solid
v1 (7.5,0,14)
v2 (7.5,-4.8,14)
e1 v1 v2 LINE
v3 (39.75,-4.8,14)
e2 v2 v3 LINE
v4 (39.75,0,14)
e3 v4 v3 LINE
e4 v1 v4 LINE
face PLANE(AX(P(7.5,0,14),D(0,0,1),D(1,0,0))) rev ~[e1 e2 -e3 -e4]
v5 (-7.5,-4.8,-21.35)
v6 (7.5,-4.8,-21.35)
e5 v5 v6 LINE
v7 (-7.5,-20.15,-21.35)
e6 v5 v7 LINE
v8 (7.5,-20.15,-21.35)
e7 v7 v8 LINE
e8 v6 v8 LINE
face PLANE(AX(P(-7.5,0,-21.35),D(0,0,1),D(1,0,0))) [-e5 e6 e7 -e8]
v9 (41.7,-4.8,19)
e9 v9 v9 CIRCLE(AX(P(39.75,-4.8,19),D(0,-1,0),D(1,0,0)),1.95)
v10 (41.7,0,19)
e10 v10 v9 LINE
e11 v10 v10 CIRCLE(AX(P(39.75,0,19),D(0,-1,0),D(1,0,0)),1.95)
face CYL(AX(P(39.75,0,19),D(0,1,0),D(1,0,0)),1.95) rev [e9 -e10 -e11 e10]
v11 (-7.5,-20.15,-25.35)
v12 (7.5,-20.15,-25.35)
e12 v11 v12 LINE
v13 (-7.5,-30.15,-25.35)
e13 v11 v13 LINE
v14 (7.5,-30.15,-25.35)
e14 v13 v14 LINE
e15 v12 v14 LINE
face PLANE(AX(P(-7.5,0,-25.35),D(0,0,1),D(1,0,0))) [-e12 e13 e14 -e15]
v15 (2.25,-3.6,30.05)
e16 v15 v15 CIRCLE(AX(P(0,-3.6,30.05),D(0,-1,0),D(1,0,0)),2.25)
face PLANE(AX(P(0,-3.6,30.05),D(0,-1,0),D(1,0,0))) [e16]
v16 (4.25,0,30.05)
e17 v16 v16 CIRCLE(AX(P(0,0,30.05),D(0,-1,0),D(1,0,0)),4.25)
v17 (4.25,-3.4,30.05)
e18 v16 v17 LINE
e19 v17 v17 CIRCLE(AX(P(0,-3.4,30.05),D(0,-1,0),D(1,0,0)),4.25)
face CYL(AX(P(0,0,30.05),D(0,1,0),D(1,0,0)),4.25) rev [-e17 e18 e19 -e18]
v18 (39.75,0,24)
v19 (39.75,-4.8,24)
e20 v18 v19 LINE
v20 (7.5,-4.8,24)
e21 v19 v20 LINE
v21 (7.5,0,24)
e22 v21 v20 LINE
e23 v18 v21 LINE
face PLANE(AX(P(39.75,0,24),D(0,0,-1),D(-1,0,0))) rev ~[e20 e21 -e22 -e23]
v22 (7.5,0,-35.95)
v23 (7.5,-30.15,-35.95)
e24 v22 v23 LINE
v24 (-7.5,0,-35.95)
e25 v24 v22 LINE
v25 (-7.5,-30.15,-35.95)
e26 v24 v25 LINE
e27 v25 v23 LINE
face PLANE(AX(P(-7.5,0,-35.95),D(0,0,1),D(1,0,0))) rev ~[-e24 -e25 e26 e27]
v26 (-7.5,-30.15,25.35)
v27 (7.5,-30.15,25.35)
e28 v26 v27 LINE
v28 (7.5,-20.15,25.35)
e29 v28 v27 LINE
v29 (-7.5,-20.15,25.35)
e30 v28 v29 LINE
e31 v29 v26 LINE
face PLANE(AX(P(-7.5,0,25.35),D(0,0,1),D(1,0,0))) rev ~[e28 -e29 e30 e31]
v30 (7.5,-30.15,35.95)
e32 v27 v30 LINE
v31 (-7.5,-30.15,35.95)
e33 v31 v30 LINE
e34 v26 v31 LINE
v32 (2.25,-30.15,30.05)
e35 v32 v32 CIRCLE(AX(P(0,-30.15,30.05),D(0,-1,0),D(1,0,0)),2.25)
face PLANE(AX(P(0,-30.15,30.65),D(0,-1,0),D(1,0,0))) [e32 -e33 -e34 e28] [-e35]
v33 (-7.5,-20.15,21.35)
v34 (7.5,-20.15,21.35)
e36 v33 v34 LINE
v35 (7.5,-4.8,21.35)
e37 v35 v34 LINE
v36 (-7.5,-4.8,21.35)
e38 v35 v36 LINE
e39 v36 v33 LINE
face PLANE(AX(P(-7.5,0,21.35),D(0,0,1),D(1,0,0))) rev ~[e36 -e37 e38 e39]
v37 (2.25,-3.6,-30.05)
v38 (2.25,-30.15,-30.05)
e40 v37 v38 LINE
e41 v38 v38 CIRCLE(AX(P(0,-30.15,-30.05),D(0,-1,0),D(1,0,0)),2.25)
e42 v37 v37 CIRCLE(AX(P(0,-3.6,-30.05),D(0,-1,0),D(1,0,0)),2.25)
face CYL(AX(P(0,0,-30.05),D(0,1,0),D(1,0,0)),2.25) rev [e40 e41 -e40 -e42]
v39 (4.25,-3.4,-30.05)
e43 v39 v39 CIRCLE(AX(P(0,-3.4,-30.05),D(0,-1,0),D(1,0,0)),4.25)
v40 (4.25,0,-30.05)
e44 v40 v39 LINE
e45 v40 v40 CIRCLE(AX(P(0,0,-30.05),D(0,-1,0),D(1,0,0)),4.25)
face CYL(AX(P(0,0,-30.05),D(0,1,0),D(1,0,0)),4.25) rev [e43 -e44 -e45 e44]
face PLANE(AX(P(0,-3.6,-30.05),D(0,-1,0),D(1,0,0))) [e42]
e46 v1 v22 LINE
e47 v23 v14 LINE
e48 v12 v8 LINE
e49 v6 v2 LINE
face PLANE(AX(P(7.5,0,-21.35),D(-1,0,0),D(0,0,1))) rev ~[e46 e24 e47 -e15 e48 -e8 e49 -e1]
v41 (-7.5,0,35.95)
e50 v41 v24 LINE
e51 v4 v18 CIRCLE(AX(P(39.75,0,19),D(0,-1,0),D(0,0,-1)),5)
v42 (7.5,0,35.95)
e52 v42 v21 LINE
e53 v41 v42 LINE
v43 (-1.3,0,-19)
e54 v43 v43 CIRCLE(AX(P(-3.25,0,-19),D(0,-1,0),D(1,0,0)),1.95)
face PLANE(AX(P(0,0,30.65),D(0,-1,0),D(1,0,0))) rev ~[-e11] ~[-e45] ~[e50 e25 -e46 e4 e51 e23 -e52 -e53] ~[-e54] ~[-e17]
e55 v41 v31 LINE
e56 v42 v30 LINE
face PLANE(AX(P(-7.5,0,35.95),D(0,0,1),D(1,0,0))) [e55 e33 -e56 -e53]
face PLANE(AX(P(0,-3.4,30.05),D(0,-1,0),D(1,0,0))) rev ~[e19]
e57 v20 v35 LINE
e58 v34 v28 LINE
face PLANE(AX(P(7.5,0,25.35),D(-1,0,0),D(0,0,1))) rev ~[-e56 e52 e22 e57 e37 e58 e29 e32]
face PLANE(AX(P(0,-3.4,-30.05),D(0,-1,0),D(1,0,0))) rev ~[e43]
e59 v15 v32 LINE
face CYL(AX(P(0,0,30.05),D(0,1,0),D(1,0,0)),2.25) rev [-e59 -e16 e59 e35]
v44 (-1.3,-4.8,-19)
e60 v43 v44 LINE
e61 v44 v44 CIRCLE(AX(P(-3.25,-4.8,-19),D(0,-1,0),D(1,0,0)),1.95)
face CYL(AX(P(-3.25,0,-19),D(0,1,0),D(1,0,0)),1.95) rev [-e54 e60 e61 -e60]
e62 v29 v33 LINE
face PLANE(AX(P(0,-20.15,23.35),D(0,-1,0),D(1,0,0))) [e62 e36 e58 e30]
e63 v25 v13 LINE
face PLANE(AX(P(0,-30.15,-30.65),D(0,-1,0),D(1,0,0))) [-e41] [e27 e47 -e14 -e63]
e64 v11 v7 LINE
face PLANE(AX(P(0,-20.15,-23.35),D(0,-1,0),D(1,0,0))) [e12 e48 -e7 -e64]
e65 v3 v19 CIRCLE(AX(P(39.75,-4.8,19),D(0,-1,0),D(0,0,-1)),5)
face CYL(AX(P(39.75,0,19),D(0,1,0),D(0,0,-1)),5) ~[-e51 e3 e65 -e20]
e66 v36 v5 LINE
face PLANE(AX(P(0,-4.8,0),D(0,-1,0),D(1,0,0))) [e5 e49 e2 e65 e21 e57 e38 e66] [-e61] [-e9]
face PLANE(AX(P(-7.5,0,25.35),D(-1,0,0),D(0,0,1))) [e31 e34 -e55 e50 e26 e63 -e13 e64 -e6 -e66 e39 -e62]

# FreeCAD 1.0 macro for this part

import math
import FreeCAD as App
import Part
import Sketcher

V = App.Vector
Q = App.Units.Quantity


def add_polygon(sketch, points):
    """Adds a closed chain of lines whose ends are joined by coincident constraints."""
    first, n = sketch.GeometryCount, len(points)
    for a, b in zip(points, points[1:] + points[:1]):
        sketch.addGeometry(Part.LineSegment(App.Vector(*a, 0), App.Vector(*b, 0)), False)
    for i in range(n):
        sketch.addConstraint(Sketcher.Constraint("Coincident", first + i, 2, first + (i + 1) % n, 1))

doc = App.newDocument("Part")
body = doc.addObject("PartDesign::Body", "Body")

# Sketch on XZ plane
sketch1 = doc.addObject("Sketcher::SketchObject", "Sketch")
body.addObject(sketch1)
sketch1.AttachmentSupport = (doc.XZ_Plane, [""])
sketch1.MapMode = "FlatFace"
sketch1.addGeometry([
    Part.LineSegment(V(7.5, 21.4, 0), V(-7.5, 21.4, 0)),  # 0
    Part.LineSegment(V(-7.5, 21.4, 0), V(-7.5, -21.4, 0)),  # 1
    Part.LineSegment(V(-7.5, -21.4, 0), V(7.5, -21.4, 0)),  # 2
    Part.LineSegment(V(7.5, -21.4, 0), V(7.5, 14, 0)),  # 3
    Part.LineSegment(V(7.5, 14, 0), V(39.8, 14, 0)),  # 4
    Part.ArcOfCircle(Part.Circle(V(39.8, 19, 0), V(0, 0, 1), 5), math.radians(-90), math.radians(90)),  # 5
    Part.LineSegment(V(39.8, 24, 0), V(7.5, 24, 0)),  # 6
    Part.LineSegment(V(7.5, 24, 0), V(7.5, 21.4, 0)),  # 7
    Part.Circle(V(-3.2, -19, 0), V(0, 0, 1), 1.9),  # 8
    Part.Circle(V(39.8, 19, 0), V(0, 0, 1), 1.9),  # 9
], False)
sketch1.addConstraint([
    Sketcher.Constraint("Coincident", 0, 2, 1, 1),
    Sketcher.Constraint("Coincident", 1, 2, 2, 1),
    Sketcher.Constraint("Coincident", 2, 2, 3, 1),
    Sketcher.Constraint("Coincident", 3, 2, 4, 1),
    Sketcher.Constraint("Tangent", 4, 2, 5, 1),
    Sketcher.Constraint("Tangent", 5, 2, 6, 1),
    Sketcher.Constraint("Coincident", 6, 2, 7, 1),
    Sketcher.Constraint("Coincident", 7, 2, 0, 1),
    Sketcher.Constraint("Horizontal", 0),
    Sketcher.Constraint("Vertical", 1),
    Sketcher.Constraint("Horizontal", 2),
    Sketcher.Constraint("Vertical", 3),
    Sketcher.Constraint("Horizontal", 4),
    Sketcher.Constraint("Horizontal", 6),
    Sketcher.Constraint("Vertical", 7),
    Sketcher.Constraint("Coincident", 9, 3, 5, 3),
    Sketcher.Constraint("Equal", 8, 9),
    Sketcher.Constraint("Symmetric", 0, 2, 2, 2, -1, 1),
    Sketcher.Constraint("Vertical", 3, 2, 6, 2),
    Sketcher.Constraint("Radius", 5, Q("5 mm")),
    Sketcher.Constraint("Diameter", 8, Q("3.9 mm")),
    Sketcher.Constraint("DistanceX", 0, 2, 0, 1, Q("15 mm")),
    Sketcher.Constraint("DistanceY", 1, 2, 1, 1, Q("42.7 mm")),
    Sketcher.Constraint("DistanceY", -1, 1, 5, 3, Q("19 mm")),
    Sketcher.Constraint("DistanceY", 8, 3, -1, 1, Q("19 mm")),
    Sketcher.Constraint("DistanceX", 8, 3, 5, 3, Q("43 mm")),
    Sketcher.Constraint("DistanceX", 4, 1, 4, 2, Q("32.25 mm")),
])
pad1 = doc.addObject("PartDesign::Pad", "Pad")
body.addObject(pad1)
pad1.Profile = sketch1
pad1.Length = 4.8

# Sketch on XZ plane
sketch2 = doc.addObject("Sketcher::SketchObject", "Sketch001")
body.addObject(sketch2)
sketch2.AttachmentSupport = (doc.XZ_Plane, [""])
sketch2.MapMode = "FlatFace"
add_polygon(sketch2, [(7.5, 25.4), (-7.5, 25.4), (-7.5, 21.4), (7.5, 21.4)])  # lines 0-3
add_polygon(sketch2, [(-7.5, -21.4), (-7.5, -25.4), (7.5, -25.4), (7.5, -21.4)])  # lines 4-7
sketch2.addConstraint([
    Sketcher.Constraint("Horizontal", 0),
    Sketcher.Constraint("Vertical", 1),
    Sketcher.Constraint("Horizontal", 2),
    Sketcher.Constraint("Vertical", 3),
    Sketcher.Constraint("Vertical", 4),
    Sketcher.Constraint("Horizontal", 5),
    Sketcher.Constraint("Vertical", 6),
    Sketcher.Constraint("Horizontal", 7),
    Sketcher.Constraint("Symmetric", 3, 2, 4, 2, -1, 1),
    Sketcher.Constraint("Symmetric", 1, 2, 6, 2, -1, 1),
    Sketcher.Constraint("Vertical", 1, 2, 4, 2),
    Sketcher.Constraint("DistanceX", 0, 2, 0, 1, Q("15 mm")),
    Sketcher.Constraint("DistanceY", 1, 2, 1, 1, Q("4 mm")),
    Sketcher.Constraint("DistanceY", 4, 2, 1, 2, Q("46.7 mm")),
])
pad2 = doc.addObject("PartDesign::Pad", "Pad001")
body.addObject(pad2)
pad2.Profile = sketch2
pad2.Length = 20.15

# Sketch on XZ plane
sketch3 = doc.addObject("Sketcher::SketchObject", "Sketch002")
body.addObject(sketch3)
sketch3.AttachmentSupport = (doc.XZ_Plane, [""])
sketch3.MapMode = "FlatFace"
add_polygon(sketch3, [(-7.5, 36), (-7.5, 25.4), (7.5, 25.4), (7.5, 36)])  # lines 0-3
sketch3.addGeometry(Part.Circle(V(0, 30.1, 0), V(0, 0, 1), 2.2), False)  # 4
add_polygon(sketch3, [(-7.5, -25.4), (-7.5, -36), (7.5, -36), (7.5, -25.4)])  # lines 5-8
sketch3.addGeometry(Part.Circle(V(0, -30.1, 0), V(0, 0, 1), 2.2), False)  # 9
sketch3.addConstraint([
    Sketcher.Constraint("Vertical", 0),
    Sketcher.Constraint("Horizontal", 1),
    Sketcher.Constraint("Vertical", 2),
    Sketcher.Constraint("Horizontal", 3),
    Sketcher.Constraint("Vertical", 5),
    Sketcher.Constraint("Horizontal", 6),
    Sketcher.Constraint("Vertical", 7),
    Sketcher.Constraint("Horizontal", 8),
    Sketcher.Constraint("Equal", 4, 9),
    Sketcher.Constraint("Symmetric", 4, 3, 9, 3, -1, 1),
    Sketcher.Constraint("Symmetric", 2, 2, 5, 2, -1, 1),
    Sketcher.Constraint("Symmetric", 0, 2, 7, 2, -1, 1),
    Sketcher.Constraint("PointOnObject", 4, 3, -2),
    Sketcher.Constraint("Vertical", 3, 2, 5, 2),
    Sketcher.Constraint("Diameter", 4, Q("4.5 mm")),
    Sketcher.Constraint("DistanceX", 1, 1, 1, 2, Q("15 mm")),
    Sketcher.Constraint("DistanceY", 0, 2, 0, 1, Q("10.6 mm")),
    Sketcher.Constraint("DistanceY", 9, 3, 2, 2, Q("66 mm")),
    Sketcher.Constraint("DistanceY", 9, 3, 4, 3, Q("60.1 mm")),
])
pad3 = doc.addObject("PartDesign::Pad", "Pad002")
body.addObject(pad3)
pad3.Profile = sketch3
pad3.Length = 30.15

# Sketch on XZ plane
sketch4 = doc.addObject("Sketcher::SketchObject", "Sketch003")
body.addObject(sketch4)
sketch4.AttachmentSupport = (doc.XZ_Plane, [""])
sketch4.MapMode = "FlatFace"
sketch4.addGeometry([
    Part.Circle(V(0, -30.1, 0), V(0, 0, 1), 4.2),
    Part.Circle(V(0, -30.1, 0), V(0, 0, 1), 2.2),
    Part.Circle(V(0, 30.1, 0), V(0, 0, 1), 4.2),
    Part.Circle(V(0, 30.1, 0), V(0, 0, 1), 2.2),
], False)
sketch4.addConstraint([
    Sketcher.Constraint("Coincident", 1, 3, 0, 3),
    Sketcher.Constraint("Coincident", 3, 3, 2, 3),
    Sketcher.Constraint("Equal", 0, 2),
    Sketcher.Constraint("Equal", 1, 3),
    Sketcher.Constraint("Symmetric", 0, 3, 2, 3, -1, 1),
    Sketcher.Constraint("PointOnObject", 0, 3, -2),
    Sketcher.Constraint("Diameter", 0, Q("8.5 mm")),
    Sketcher.Constraint("Diameter", 1, Q("4.5 mm")),
    Sketcher.Constraint("DistanceY", 0, 3, 2, 3, Q("60.1 mm")),
])
pocket1 = doc.addObject("PartDesign::Pocket", "Pocket")
body.addObject(pocket1)
pocket1.Profile = sketch4
pocket1.Length = 3.4
pocket1.Reversed = True

# Sketch on XZ plane
sketch5 = doc.addObject("Sketcher::SketchObject", "Sketch004")
body.addObject(sketch5)
sketch5.AttachmentSupport = (doc.XZ_Plane, [""])
sketch5.MapMode = "FlatFace"
sketch5.addGeometry([
    Part.Circle(V(0, 30.1, 0), V(0, 0, 1), 2.2),
    Part.Circle(V(0, -30.1, 0), V(0, 0, 1), 2.2),
], False)
sketch5.addConstraint([
    Sketcher.Constraint("Equal", 0, 1),
    Sketcher.Constraint("Symmetric", 0, 3, 1, 3, -1, 1),
    Sketcher.Constraint("PointOnObject", 0, 3, -2),
    Sketcher.Constraint("Diameter", 0, Q("4.5 mm")),
    Sketcher.Constraint("DistanceY", 1, 3, 0, 3, Q("60.1 mm")),
])
pad4 = doc.addObject("PartDesign::Pad", "Pad003")
body.addObject(pad4)
pad4.Profile = sketch5
pad4.Length = 3.6

# Sketch on XZ plane
sketch6 = doc.addObject("Sketcher::SketchObject", "Sketch005")
body.addObject(sketch6)
sketch6.AttachmentSupport = (doc.XZ_Plane, [""])
sketch6.MapMode = "FlatFace"
sketch6.addGeometry([
    Part.Circle(V(0, -30.1, 0), V(0, 0, 1), 2.2),
    Part.Circle(V(0, 30.1, 0), V(0, 0, 1), 2.2),
], False)
sketch6.addConstraint([
    Sketcher.Constraint("Equal", 0, 1),
    Sketcher.Constraint("Symmetric", 0, 3, 1, 3, -1, 1),
    Sketcher.Constraint("PointOnObject", 0, 3, -2),
    Sketcher.Constraint("Diameter", 0, Q("4.5 mm")),
    Sketcher.Constraint("DistanceY", 0, 3, 1, 3, Q("60.1 mm")),
])
pocket2 = doc.addObject("PartDesign::Pocket", "Pocket001")
body.addObject(pocket2)
pocket2.Profile = sketch6
pocket2.Length = 3.4
pocket2.Reversed = True

doc.recompute()
